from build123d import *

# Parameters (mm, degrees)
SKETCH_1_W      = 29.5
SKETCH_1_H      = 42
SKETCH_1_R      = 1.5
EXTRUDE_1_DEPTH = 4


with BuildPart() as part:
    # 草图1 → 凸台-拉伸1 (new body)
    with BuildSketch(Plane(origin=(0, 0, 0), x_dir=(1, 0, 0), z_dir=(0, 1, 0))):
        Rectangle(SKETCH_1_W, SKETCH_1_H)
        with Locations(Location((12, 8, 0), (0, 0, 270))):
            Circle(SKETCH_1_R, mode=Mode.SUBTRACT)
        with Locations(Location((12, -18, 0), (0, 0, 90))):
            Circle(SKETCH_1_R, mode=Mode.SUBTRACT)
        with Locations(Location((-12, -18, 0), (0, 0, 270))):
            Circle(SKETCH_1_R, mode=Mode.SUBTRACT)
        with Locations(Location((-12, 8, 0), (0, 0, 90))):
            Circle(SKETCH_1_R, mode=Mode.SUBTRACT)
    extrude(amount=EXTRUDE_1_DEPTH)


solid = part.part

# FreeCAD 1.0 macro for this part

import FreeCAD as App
import Part
import Sketcher
from FreeCAD import Vector
Q = App.Units.Quantity

doc = App.newDocument("Part")
body = doc.addObject("PartDesign::Body", "Body")

sketch1 = doc.addObject("Sketcher::SketchObject", "Sketch")
body.addObject(sketch1)
sketch1.AttachmentSupport = (doc.XZ_Plane, [""])
sketch1.MapMode = "FlatFace"
sketch1.addGeometry(Part.LineSegment(Vector(-14.8, -21, 0), Vector(-14.8, 21, 0)), False)
sketch1.addGeometry(Part.LineSegment(Vector(-14.8, 21, 0), Vector(14.8, 21, 0)), False)
sketch1.addGeometry(Part.LineSegment(Vector(14.8, 21, 0), Vector(14.8, -21, 0)), False)
sketch1.addGeometry(Part.LineSegment(Vector(14.8, -21, 0), Vector(-14.8, -21, 0)), False)
sketch1.addGeometry(Part.Circle(Vector(-12, 18, 0), Vector(0, 0, 1), 1.5), False)
sketch1.addGeometry(Part.Circle(Vector(12, 18, 0), Vector(0, 0, 1), 1.5), False)
sketch1.addGeometry(Part.Circle(Vector(-12, -8, 0), Vector(0, 0, 1), 1.5), False)
sketch1.addGeometry(Part.Circle(Vector(12, -8, 0), Vector(0, 0, 1), 1.5), False)
sketch1.addConstraint(Sketcher.Constraint("Coincident", 0, 2, 1, 1))
sketch1.addConstraint(Sketcher.Constraint("Coincident", 1, 2, 2, 1))
sketch1.addConstraint(Sketcher.Constraint("Coincident", 2, 2, 3, 1))
sketch1.addConstraint(Sketcher.Constraint("Coincident", 3, 2, 0, 1))
sketch1.addConstraint(Sketcher.Constraint("Vertical", 0))
sketch1.addConstraint(Sketcher.Constraint("Horizontal", 1))
sketch1.addConstraint(Sketcher.Constraint("Vertical", 2))
sketch1.addConstraint(Sketcher.Constraint("Horizontal", 3))
sketch1.addConstraint(Sketcher.Constraint("Equal", 4, 5))
sketch1.addConstraint(Sketcher.Constraint("Equal", 5, 6))
sketch1.addConstraint(Sketcher.Constraint("Equal", 6, 7))
sketch1.addConstraint(Sketcher.Constraint("Symmetric", 0, 2, 2, 2, -1, 1))
sketch1.addConstraint(Sketcher.Constraint("Symmetric", 4, 3, 5, 3, -2))
sketch1.addConstraint(Sketcher.Constraint("Symmetric", 6, 3, 7, 3, -2))
sketch1.addConstraint(Sketcher.Constraint("Vertical", 4, 3, 6, 3))
sketch1.addConstraint(Sketcher.Constraint("Diameter", 4, Q("3 mm")))
sketch1.addConstraint(Sketcher.Constraint("DistanceY", 0, 1, 0, 2, Q("42 mm")))
sketch1.addConstraint(Sketcher.Constraint("DistanceX", 1, 1, 1, 2, Q("29.5 mm")))
sketch1.addConstraint(Sketcher.Constraint("DistanceX", 4, 3, -1, 1, Q("12 mm")))
sketch1.addConstraint(Sketcher.Constraint("DistanceY", -1, 1, 4, 3, Q("18 mm")))
sketch1.addConstraint(Sketcher.Constraint("DistanceY", 6, 3, -1, 1, Q("8 mm")))
pad1 = doc.addObject("PartDesign::Pad", "Pad")
body.addObject(pad1)
pad1.Profile = sketch1
pad1.Length = 4
pad1.Reversed = True

doc.recompute()
